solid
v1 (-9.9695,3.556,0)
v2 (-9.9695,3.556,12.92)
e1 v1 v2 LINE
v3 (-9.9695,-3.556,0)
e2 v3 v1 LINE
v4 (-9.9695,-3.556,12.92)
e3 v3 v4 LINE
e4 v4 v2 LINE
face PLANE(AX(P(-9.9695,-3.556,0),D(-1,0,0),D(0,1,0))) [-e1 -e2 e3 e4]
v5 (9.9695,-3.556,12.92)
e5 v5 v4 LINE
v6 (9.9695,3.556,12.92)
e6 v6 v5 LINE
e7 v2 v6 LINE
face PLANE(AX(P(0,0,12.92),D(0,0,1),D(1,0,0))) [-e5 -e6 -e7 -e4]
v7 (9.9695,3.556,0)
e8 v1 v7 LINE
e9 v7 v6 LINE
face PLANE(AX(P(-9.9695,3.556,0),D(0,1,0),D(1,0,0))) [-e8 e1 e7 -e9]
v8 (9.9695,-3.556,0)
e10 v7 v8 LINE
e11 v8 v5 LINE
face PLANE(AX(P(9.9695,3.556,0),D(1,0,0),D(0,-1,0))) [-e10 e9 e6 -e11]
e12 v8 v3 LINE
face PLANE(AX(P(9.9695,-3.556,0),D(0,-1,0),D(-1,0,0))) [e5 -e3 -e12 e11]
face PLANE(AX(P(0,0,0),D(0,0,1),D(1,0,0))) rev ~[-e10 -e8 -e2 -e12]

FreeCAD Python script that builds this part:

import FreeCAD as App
import Part
import Sketcher

V = App.Vector
Q = App.Units.Quantity

doc = App.newDocument("Part")
body = doc.addObject("PartDesign::Body", "Body")

# Sketch on XY plane
sketch1 = doc.addObject("Sketcher::SketchObject", "Sketch")
body.addObject(sketch1)
sketch1.AttachmentSupport = (doc.XY_Plane, [""])
sketch1.MapMode = "FlatFace"
sketch1.addGeometry([
    Part.LineSegment(V(-10, 4, 0), V(-10, -4, 0)),
    Part.LineSegment(V(-10, -4, 0), V(10, -4, 0)),
    Part.LineSegment(V(10, -4, 0), V(10, 4, 0)),
    Part.LineSegment(V(10, 4, 0), V(-10, 4, 0)),
], False)
sketch1.addConstraint([
    Sketcher.Constraint("Coincident", 0, 2, 1, 1),
    Sketcher.Constraint("Coincident", 1, 2, 2, 1),
    Sketcher.Constraint("Coincident", 2, 2, 3, 1),
    Sketcher.Constraint("Coincident", 3, 2, 0, 1),
    Sketcher.Constraint("Vertical", 0),
    Sketcher.Constraint("Horizontal", 1),
    Sketcher.Constraint("Vertical", 2),
    Sketcher.Constraint("Horizontal", 3),
    Sketcher.Constraint("Symmetric", 0, 2, 2, 2, -1, 1),
    Sketcher.Constraint("DistanceY", 0, 2, 0, 1, Q("0.28 in")),
    Sketcher.Constraint("DistanceX", 1, 1, 1, 2, Q("0.785 in")),
])
pad1 = doc.addObject("PartDesign::Pad", "Pad")
body.addObject(pad1)
pad1.Profile = sketch1
pad1.Length = 12.92

doc.recompute()
